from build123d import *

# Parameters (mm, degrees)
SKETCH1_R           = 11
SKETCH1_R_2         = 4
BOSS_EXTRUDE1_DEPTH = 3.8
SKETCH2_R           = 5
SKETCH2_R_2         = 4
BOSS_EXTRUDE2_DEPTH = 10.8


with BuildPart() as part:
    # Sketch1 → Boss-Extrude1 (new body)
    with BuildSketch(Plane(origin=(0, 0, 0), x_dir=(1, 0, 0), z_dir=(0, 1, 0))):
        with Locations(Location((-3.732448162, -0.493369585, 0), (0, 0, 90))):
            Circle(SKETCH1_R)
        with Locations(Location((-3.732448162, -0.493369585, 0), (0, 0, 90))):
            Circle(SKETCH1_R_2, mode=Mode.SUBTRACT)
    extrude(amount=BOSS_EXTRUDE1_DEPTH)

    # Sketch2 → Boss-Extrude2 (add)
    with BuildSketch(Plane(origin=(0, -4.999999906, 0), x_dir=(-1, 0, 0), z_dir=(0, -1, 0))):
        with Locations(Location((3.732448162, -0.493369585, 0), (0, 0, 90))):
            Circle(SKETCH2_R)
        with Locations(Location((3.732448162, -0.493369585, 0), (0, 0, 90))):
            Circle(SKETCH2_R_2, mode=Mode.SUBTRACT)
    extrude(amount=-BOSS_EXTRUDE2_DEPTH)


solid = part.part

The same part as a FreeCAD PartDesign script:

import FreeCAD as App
import Part
import Sketcher
Q = App.Units.Quantity

doc = App.newDocument("Part")
body = doc.addObject("PartDesign::Body", "Body")

sketch1 = body.newObject("Sketcher::SketchObject", "Sketch")
sketch1.AttachmentSupport = (doc.getObject("XZ_Plane"), [""])
sketch1.MapMode = "FlatFace"
sketch1.addGeometry(Part.Circle(App.Vector(-3.732448, 0.49337, 0), App.Vector(0, 0, 1), 11), False)
sketch1.addGeometry(Part.Circle(App.Vector(-3.732448, 0.49337, 0), App.Vector(0, 0, 1), 4), False)
sketch1.addConstraint(Sketcher.Constraint("Coincident", 1, 3, 0, 3))
sketch1.addConstraint(Sketcher.Constraint("Diameter", 0, Q("22 mm")))
sketch1.addConstraint(Sketcher.Constraint("Diameter", 1, Q("8 mm")))
sketch1.addConstraint(Sketcher.Constraint("DistanceX", 0, 3, -1, 1, Q("3.732448 mm")))
sketch1.addConstraint(Sketcher.Constraint("DistanceY", -1, 1, 0, 3, Q("0.49337 mm")))
pad1 = body.newObject("PartDesign::Pad", "Pad")
pad1.Profile = sketch1
pad1.Length = 3.8
pad1.Reversed = True

sketch2 = body.newObject("Sketcher::SketchObject", "Sketch001")
sketch2.AttachmentSupport = (doc.getObject("XZ_Plane"), [""])
sketch2.MapMode = "FlatFace"
sketch2.AttachmentOffset = App.Placement(App.Vector(0, 0, 5), App.Rotation())
sketch2.addGeometry(Part.Circle(App.Vector(-3.732448, 0.49337, 0), App.Vector(0, 0, 1), 5), False)
sketch2.addGeometry(Part.Circle(App.Vector(-3.732448, 0.49337, 0), App.Vector(0, 0, 1), 4), False)
sketch2.addConstraint(Sketcher.Constraint("Coincident", 1, 3, 0, 3))
sketch2.addConstraint(Sketcher.Constraint("Diameter", 0, Q("10 mm")))
sketch2.addConstraint(Sketcher.Constraint("Diameter", 1, Q("8 mm")))
sketch2.addConstraint(Sketcher.Constraint("DistanceX", 0, 3, -1, 1, Q("3.732448 mm")))
sketch2.addConstraint(Sketcher.Constraint("DistanceY", -1, 1, 0, 3, Q("0.49337 mm")))
pad2 = body.newObject("PartDesign::Pad", "Pad001")
pad2.Profile = sketch2
pad2.Length = 10.8
pad2.Reversed = True

doc.recompute()
